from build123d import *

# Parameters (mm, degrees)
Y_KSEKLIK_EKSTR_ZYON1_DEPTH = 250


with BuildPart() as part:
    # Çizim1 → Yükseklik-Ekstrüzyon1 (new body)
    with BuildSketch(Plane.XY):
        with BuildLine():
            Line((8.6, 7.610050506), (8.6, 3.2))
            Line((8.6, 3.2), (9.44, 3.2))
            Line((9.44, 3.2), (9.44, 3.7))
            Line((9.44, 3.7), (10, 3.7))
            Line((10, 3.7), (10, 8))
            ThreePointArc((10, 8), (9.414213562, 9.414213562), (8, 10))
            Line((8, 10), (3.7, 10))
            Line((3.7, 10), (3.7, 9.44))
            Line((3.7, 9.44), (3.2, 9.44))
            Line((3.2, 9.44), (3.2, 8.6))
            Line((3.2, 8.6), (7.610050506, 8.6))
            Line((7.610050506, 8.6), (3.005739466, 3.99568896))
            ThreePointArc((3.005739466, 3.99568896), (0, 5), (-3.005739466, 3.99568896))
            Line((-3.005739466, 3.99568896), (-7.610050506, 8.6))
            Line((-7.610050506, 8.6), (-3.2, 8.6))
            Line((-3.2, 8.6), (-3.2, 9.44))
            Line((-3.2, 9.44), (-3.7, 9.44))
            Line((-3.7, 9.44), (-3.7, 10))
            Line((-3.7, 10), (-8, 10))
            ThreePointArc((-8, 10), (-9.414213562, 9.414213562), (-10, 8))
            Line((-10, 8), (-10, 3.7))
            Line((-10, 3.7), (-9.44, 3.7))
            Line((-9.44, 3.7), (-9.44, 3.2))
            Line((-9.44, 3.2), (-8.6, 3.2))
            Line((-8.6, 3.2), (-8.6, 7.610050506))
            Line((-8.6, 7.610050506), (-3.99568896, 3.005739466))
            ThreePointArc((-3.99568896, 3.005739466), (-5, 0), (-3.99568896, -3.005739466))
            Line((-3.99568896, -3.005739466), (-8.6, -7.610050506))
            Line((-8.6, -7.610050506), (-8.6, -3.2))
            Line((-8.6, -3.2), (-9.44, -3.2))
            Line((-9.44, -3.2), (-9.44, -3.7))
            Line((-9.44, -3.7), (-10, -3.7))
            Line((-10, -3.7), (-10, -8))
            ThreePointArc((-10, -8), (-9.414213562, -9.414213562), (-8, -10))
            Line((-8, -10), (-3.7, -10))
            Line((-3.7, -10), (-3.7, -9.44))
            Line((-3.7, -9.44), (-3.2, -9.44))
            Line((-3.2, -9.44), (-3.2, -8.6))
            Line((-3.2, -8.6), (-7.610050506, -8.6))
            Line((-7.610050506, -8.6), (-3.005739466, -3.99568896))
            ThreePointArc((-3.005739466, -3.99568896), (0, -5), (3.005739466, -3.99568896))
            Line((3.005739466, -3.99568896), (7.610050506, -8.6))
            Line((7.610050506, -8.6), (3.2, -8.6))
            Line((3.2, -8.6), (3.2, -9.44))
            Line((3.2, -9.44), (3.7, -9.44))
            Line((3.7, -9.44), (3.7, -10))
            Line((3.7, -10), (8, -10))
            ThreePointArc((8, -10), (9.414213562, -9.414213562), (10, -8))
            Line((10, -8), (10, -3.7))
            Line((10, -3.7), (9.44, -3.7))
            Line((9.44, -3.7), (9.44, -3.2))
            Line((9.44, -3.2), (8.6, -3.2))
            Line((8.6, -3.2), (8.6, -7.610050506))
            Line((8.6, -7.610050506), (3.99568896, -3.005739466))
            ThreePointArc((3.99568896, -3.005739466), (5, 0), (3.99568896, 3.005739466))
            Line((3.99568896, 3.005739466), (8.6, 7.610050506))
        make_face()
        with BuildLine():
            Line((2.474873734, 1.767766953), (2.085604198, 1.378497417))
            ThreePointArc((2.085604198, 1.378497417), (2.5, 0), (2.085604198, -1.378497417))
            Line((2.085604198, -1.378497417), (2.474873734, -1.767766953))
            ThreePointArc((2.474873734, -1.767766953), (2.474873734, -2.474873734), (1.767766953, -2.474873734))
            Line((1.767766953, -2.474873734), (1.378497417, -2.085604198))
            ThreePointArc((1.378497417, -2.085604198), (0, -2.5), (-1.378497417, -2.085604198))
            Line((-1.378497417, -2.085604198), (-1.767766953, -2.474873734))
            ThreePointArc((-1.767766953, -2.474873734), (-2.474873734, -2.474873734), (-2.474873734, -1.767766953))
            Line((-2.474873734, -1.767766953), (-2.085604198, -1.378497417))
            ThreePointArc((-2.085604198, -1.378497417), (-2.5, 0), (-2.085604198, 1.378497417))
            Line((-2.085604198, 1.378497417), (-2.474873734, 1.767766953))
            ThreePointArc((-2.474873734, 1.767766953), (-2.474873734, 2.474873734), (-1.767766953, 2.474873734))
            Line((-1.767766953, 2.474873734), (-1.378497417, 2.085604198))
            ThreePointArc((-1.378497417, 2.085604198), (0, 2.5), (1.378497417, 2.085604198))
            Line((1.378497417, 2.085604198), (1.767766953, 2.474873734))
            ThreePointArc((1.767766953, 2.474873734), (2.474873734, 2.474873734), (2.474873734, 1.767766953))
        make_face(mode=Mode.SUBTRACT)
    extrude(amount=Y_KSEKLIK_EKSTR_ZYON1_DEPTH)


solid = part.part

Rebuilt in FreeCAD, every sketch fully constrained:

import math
import FreeCAD as App
import Part
import Sketcher
from FreeCAD import Vector

doc = App.newDocument("Part")
body = doc.addObject("PartDesign::Body", "Body")

# Sketch on XY plane
sketch1 = body.newObject("Sketcher::SketchObject", "Sketch")
sketch1.AttachmentSupport = (doc.getObject("XY_Plane"), [""])
sketch1.MapMode = "FlatFace"
sketch1.addGeometry([
    Part.LineSegment(Vector(8.6, 7.6, 0), Vector(8.6, 3.2, 0)),  # 0
    Part.LineSegment(Vector(8.6, 3.2, 0), Vector(9.4, 3.2, 0)),  # 1
    Part.LineSegment(Vector(9.4, 3.2, 0), Vector(9.4, 3.7, 0)),  # 2
    Part.LineSegment(Vector(9.4, 3.7, 0), Vector(10, 3.7, 0)),  # 3
    Part.LineSegment(Vector(10, 3.7, 0), Vector(10, 8, 0)),  # 4
    Part.ArcOfCircle(Part.Circle(Vector(8, 8, 0), Vector(0, 0, 1), 2), math.radians(0), math.radians(90)),  # 5
    Part.LineSegment(Vector(8, 10, 0), Vector(3.7, 10, 0)),  # 6
    Part.LineSegment(Vector(3.7, 10, 0), Vector(3.7, 9.4, 0)),  # 7
    Part.LineSegment(Vector(3.7, 9.4, 0), Vector(3.2, 9.4, 0)),  # 8
    Part.LineSegment(Vector(3.2, 9.4, 0), Vector(3.2, 8.6, 0)),  # 9
    Part.LineSegment(Vector(3.2, 8.6, 0), Vector(7.6, 8.6, 0)),  # 10
    Part.LineSegment(Vector(7.6, 8.6, 0), Vector(3, 4, 0)),  # 11
    Part.ArcOfCircle(Part.Circle(Vector(0, 0, 0), Vector(0, 0, 1), 5), math.radians(53), math.radians(127)),  # 12
    Part.LineSegment(Vector(-3, 4, 0), Vector(-7.6, 8.6, 0)),  # 13
    Part.LineSegment(Vector(-7.6, 8.6, 0), Vector(-3.2, 8.6, 0)),  # 14
    Part.LineSegment(Vector(-3.2, 8.6, 0), Vector(-3.2, 9.4, 0)),  # 15
    Part.LineSegment(Vector(-3.2, 9.4, 0), Vector(-3.7, 9.4, 0)),  # 16
    Part.LineSegment(Vector(-3.7, 9.4, 0), Vector(-3.7, 10, 0)),  # 17
    Part.LineSegment(Vector(-3.7, 10, 0), Vector(-8, 10, 0)),  # 18
    Part.ArcOfCircle(Part.Circle(Vector(-8, 8, 0), Vector(0, 0, 1), 2), math.radians(90), math.radians(180)),  # 19
    Part.LineSegment(Vector(-10, 8, 0), Vector(-10, 3.7, 0)),  # 20
    Part.LineSegment(Vector(-10, 3.7, 0), Vector(-9.4, 3.7, 0)),  # 21
    Part.LineSegment(Vector(-9.4, 3.7, 0), Vector(-9.4, 3.2, 0)),  # 22
    Part.LineSegment(Vector(-9.4, 3.2, 0), Vector(-8.6, 3.2, 0)),  # 23
    Part.LineSegment(Vector(-8.6, 3.2, 0), Vector(-8.6, 7.6, 0)),  # 24
    Part.LineSegment(Vector(-8.6, 7.6, 0), Vector(-4, 3, 0)),  # 25
    Part.ArcOfCircle(Part.Circle(Vector(0, 0, 0), Vector(0, 0, 1), 5), math.radians(143), math.radians(217)),  # 26
    Part.LineSegment(Vector(-4, -3, 0), Vector(-8.6, -7.6, 0)),  # 27
    Part.LineSegment(Vector(-8.6, -7.6, 0), Vector(-8.6, -3.2, 0)),  # 28
    Part.LineSegment(Vector(-8.6, -3.2, 0), Vector(-9.4, -3.2, 0)),  # 29
    Part.LineSegment(Vector(-9.4, -3.2, 0), Vector(-9.4, -3.7, 0)),  # 30
    Part.LineSegment(Vector(-9.4, -3.7, 0), Vector(-10, -3.7, 0)),  # 31
    Part.LineSegment(Vector(-10, -3.7, 0), Vector(-10, -8, 0)),  # 32
    Part.ArcOfCircle(Part.Circle(Vector(-8, -8, 0), Vector(0, 0, 1), 2), math.radians(-180), math.radians(-90)),  # 33
    Part.LineSegment(Vector(-8, -10, 0), Vector(-3.7, -10, 0)),  # 34
    Part.LineSegment(Vector(-3.7, -10, 0), Vector(-3.7, -9.4, 0)),  # 35
    Part.LineSegment(Vector(-3.7, -9.4, 0), Vector(-3.2, -9.4, 0)),  # 36
    Part.LineSegment(Vector(-3.2, -9.4, 0), Vector(-3.2, -8.6, 0)),  # 37
    Part.LineSegment(Vector(-3.2, -8.6, 0), Vector(-7.6, -8.6, 0)),  # 38
    Part.LineSegment(Vector(-7.6, -8.6, 0), Vector(-3, -4, 0)),  # 39
    Part.ArcOfCircle(Part.Circle(Vector(0, 0, 0), Vector(0, 0, 1), 5), math.radians(-127), math.radians(-53)),  # 40
    Part.LineSegment(Vector(3, -4, 0), Vector(7.6, -8.6, 0)),  # 41
    Part.LineSegment(Vector(7.6, -8.6, 0), Vector(3.2, -8.6, 0)),  # 42
    Part.LineSegment(Vector(3.2, -8.6, 0), Vector(3.2, -9.4, 0)),  # 43
    Part.LineSegment(Vector(3.2, -9.4, 0), Vector(3.7, -9.4, 0)),  # 44
    Part.LineSegment(Vector(3.7, -9.4, 0), Vector(3.7, -10, 0)),  # 45
    Part.LineSegment(Vector(3.7, -10, 0), Vector(8, -10, 0)),  # 46
    Part.ArcOfCircle(Part.Circle(Vector(8, -8, 0), Vector(0, 0, 1), 2), math.radians(-90), math.radians(0)),  # 47
    Part.LineSegment(Vector(10, -8, 0), Vector(10, -3.7, 0)),  # 48
    Part.LineSegment(Vector(10, -3.7, 0), Vector(9.4, -3.7, 0)),  # 49
    Part.LineSegment(Vector(9.4, -3.7, 0), Vector(9.4, -3.2, 0)),  # 50
    Part.LineSegment(Vector(9.4, -3.2, 0), Vector(8.6, -3.2, 0)),  # 51
    Part.LineSegment(Vector(8.6, -3.2, 0), Vector(8.6, -7.6, 0)),  # 52
    Part.LineSegment(Vector(8.6, -7.6, 0), Vector(4, -3, 0)),  # 53
    Part.ArcOfCircle(Part.Circle(Vector(0, 0, 0), Vector(0, 0, 1), 5), math.radians(-37), math.radians(37)),  # 54
    Part.LineSegment(Vector(4, 3, 0), Vector(8.6, 7.6, 0)),  # 55
    Part.ArcOfCircle(Part.Circle(Vector(2.1, 2.1, 0), Vector(0, 0, 1), 0.5), math.radians(-45), math.radians(135)),  # 56
    Part.LineSegment(Vector(2.5, 1.8, 0), Vector(2.1, 1.4, 0)),  # 57
    Part.ArcOfCircle(Part.Circle(Vector(0, 0, 0), Vector(0, 0, 1), 2.5), math.radians(-33), math.radians(33)),  # 58
    Part.LineSegment(Vector(2.1, -1.4, 0), Vector(2.5, -1.8, 0)),  # 59
    Part.ArcOfCircle(Part.Circle(Vector(2.1, -2.1, 0), Vector(0, 0, 1), 0.5), math.radians(-135), math.radians(45)),  # 60
    Part.LineSegment(Vector(1.8, -2.5, 0), Vector(1.4, -2.1, 0)),  # 61
    Part.ArcOfCircle(Part.Circle(Vector(0, 0, 0), Vector(0, 0, 1), 2.5), math.radians(-123), math.radians(-57)),  # 62
    Part.LineSegment(Vector(-1.4, -2.1, 0), Vector(-1.8, -2.5, 0)),  # 63
    Part.ArcOfCircle(Part.Circle(Vector(-2.1, -2.1, 0), Vector(0, 0, 1), 0.5), math.radians(135), math.radians(315)),  # 64
    Part.LineSegment(Vector(-2.5, -1.8, 0), Vector(-2.1, -1.4, 0)),  # 65
    Part.ArcOfCircle(Part.Circle(Vector(0, 0, 0), Vector(0, 0, 1), 2.5), math.radians(147), math.radians(213)),  # 66
    Part.LineSegment(Vector(-2.1, 1.4, 0), Vector(-2.5, 1.8, 0)),  # 67
    Part.ArcOfCircle(Part.Circle(Vector(-2.1, 2.1, 0), Vector(0, 0, 1), 0.5), math.radians(45), math.radians(225)),  # 68
    Part.LineSegment(Vector(-1.8, 2.5, 0), Vector(-1.4, 2.1, 0)),  # 69
    Part.ArcOfCircle(Part.Circle(Vector(0, 0, 0), Vector(0, 0, 1), 2.5), math.radians(57), math.radians(123)),  # 70
    Part.LineSegment(Vector(1.4, 2.1, 0), Vector(1.8, 2.5, 0)),  # 71
], False)
sketch1.addConstraint([
    Sketcher.Constraint("Coincident", 0, 2, 1, 1),
    Sketcher.Constraint("Coincident", 1, 2, 2, 1),
    Sketcher.Constraint("Coincident", 2, 2, 3, 1),
    Sketcher.Constraint("Coincident", 3, 2, 4, 1),
    Sketcher.Constraint("Tangent", 4, 2, 5, 1),
    Sketcher.Constraint("Tangent", 5, 2, 6, 1),
    Sketcher.Constraint("Coincident", 6, 2, 7, 1),
    Sketcher.Constraint("Coincident", 7, 2, 8, 1),
    Sketcher.Constraint("Coincident", 8, 2, 9, 1),
    Sketcher.Constraint("Coincident", 9, 2, 10, 1),
    Sketcher.Constraint("Coincident", 10, 2, 11, 1),
    Sketcher.Constraint("Coincident", 11, 2, 12, 1),
    Sketcher.Constraint("Coincident", 12, 2, 13, 1),
    Sketcher.Constraint("Coincident", 13, 2, 14, 1),
    Sketcher.Constraint("Coincident", 14, 2, 15, 1),
    Sketcher.Constraint("Coincident", 15, 2, 16, 1),
    Sketcher.Constraint("Coincident", 16, 2, 17, 1),
    Sketcher.Constraint("Coincident", 17, 2, 18, 1),
    Sketcher.Constraint("Tangent", 18, 2, 19, 1),
    Sketcher.Constraint("Tangent", 19, 2, 20, 1),
    Sketcher.Constraint("Coincident", 20, 2, 21, 1),
    Sketcher.Constraint("Coincident", 21, 2, 22, 1),
    Sketcher.Constraint("Coincident", 22, 2, 23, 1),
    Sketcher.Constraint("Coincident", 23, 2, 24, 1),
    Sketcher.Constraint("Coincident", 24, 2, 25, 1),
    Sketcher.Constraint("Coincident", 25, 2, 26, 1),
    Sketcher.Constraint("Coincident", 26, 2, 27, 1),
    Sketcher.Constraint("Coincident", 27, 2, 28, 1),
    Sketcher.Constraint("Coincident", 28, 2, 29, 1),
    Sketcher.Constraint("Coincident", 29, 2, 30, 1),
    Sketcher.Constraint("Coincident", 30, 2, 31, 1),
    Sketcher.Constraint("Coincident", 31, 2, 32, 1),
    Sketcher.Constraint("Tangent", 32, 2, 33, 1),
    Sketcher.Constraint("Tangent", 33, 2, 34, 1),
    Sketcher.Constraint("Coincident", 34, 2, 35, 1),
    Sketcher.Constraint("Coincident", 35, 2, 36, 1),
    Sketcher.Constraint("Coincident", 36, 2, 37, 1),
    Sketcher.Constraint("Coincident", 37, 2, 38, 1),
    Sketcher.Constraint("Coincident", 38, 2, 39, 1),
    Sketcher.Constraint("Coincident", 39, 2, 40, 1),
    Sketcher.Constraint("Coincident", 40, 2, 41, 1),
    Sketcher.Constraint("Coincident", 41, 2, 42, 1),
    Sketcher.Constraint("Coincident", 42, 2, 43, 1),
    Sketcher.Constraint("Coincident", 43, 2, 44, 1),
    Sketcher.Constraint("Coincident", 44, 2, 45, 1),
    Sketcher.Constraint("Coincident", 45, 2, 46, 1),
    Sketcher.Constraint("Tangent", 46, 2, 47, 1),
    Sketcher.Constraint("Tangent", 47, 2, 48, 1),
    Sketcher.Constraint("Coincident", 48, 2, 49, 1),
    Sketcher.Constraint("Coincident", 49, 2, 50, 1),
    Sketcher.Constraint("Coincident", 50, 2, 51, 1),
    Sketcher.Constraint("Coincident", 51, 2, 52, 1),
    Sketcher.Constraint("Coincident", 52, 2, 53, 1),
    Sketcher.Constraint("Coincident", 53, 2, 54, 1),
    Sketcher.Constraint("Coincident", 54, 2, 55, 1),
    Sketcher.Constraint("Coincident", 55, 2, 0, 1),
    Sketcher.Constraint("Tangent", 56, 1, 57, 1),
    Sketcher.Constraint("Coincident", 57, 2, 58, 2),
    Sketcher.Constraint("Coincident", 58, 1, 59, 1),
    Sketcher.Constraint("Tangent", 59, 2, 60, 2),
    Sketcher.Constraint("Tangent", 60, 1, 61, 1),
    Sketcher.Constraint("Coincident", 61, 2, 62, 2),
    Sketcher.Constraint("Coincident", 62, 1, 63, 1),
    Sketcher.Constraint("Tangent", 63, 2, 64, 2),
    Sketcher.Constraint("Tangent", 64, 1, 65, 1),
    Sketcher.Constraint("Coincident", 65, 2, 66, 2),
    Sketcher.Constraint("Coincident", 66, 1, 67, 1),
    Sketcher.Constraint("Tangent", 67, 2, 68, 2),
    Sketcher.Constraint("Tangent", 68, 1, 69, 1),
    Sketcher.Constraint("Coincident", 69, 2, 70, 2),
    Sketcher.Constraint("Coincident", 70, 1, 71, 1),
    Sketcher.Constraint("Tangent", 71, 2, 56, 2),
    Sketcher.Constraint("Vertical", 0),
    Sketcher.Constraint("Horizontal", 1),
    Sketcher.Constraint("Vertical", 2),
    Sketcher.Constraint("Horizontal", 3),
    Sketcher.Constraint("Vertical", 4),
    Sketcher.Constraint("Horizontal", 6),
    Sketcher.Constraint("Vertical", 7),
    Sketcher.Constraint("Horizontal", 8),
    Sketcher.Constraint("Vertical", 9),
    Sketcher.Constraint("Horizontal", 10),
    Sketcher.Constraint("Horizontal", 14),
    Sketcher.Constraint("Vertical", 15),
    Sketcher.Constraint("Horizontal", 16),
    Sketcher.Constraint("Vertical", 17),
    Sketcher.Constraint("Horizontal", 18),
    Sketcher.Constraint("Vertical", 20),
    Sketcher.Constraint("Horizontal", 21),
    Sketcher.Constraint("Vertical", 22),
    Sketcher.Constraint("Horizontal", 23),
    Sketcher.Constraint("Vertical", 24),
    Sketcher.Constraint("Vertical", 28),
    Sketcher.Constraint("Horizontal", 29),
    Sketcher.Constraint("Vertical", 30),
    Sketcher.Constraint("Horizontal", 31),
    Sketcher.Constraint("Vertical", 32),
    Sketcher.Constraint("Horizontal", 34),
    Sketcher.Constraint("Vertical", 35),
    Sketcher.Constraint("Horizontal", 36),
    Sketcher.Constraint("Vertical", 37),
    Sketcher.Constraint("Horizontal", 38),
    Sketcher.Constraint("Horizontal", 42),
    Sketcher.Constraint("Vertical", 43),
    Sketcher.Constraint("Horizontal", 44),
    Sketcher.Constraint("Vertical", 45),
    Sketcher.Constraint("Horizontal", 46),
    Sketcher.Constraint("Vertical", 48),
    Sketcher.Constraint("Horizontal", 49),
    Sketcher.Constraint("Vertical", 50),
    Sketcher.Constraint("Horizontal", 51),
    Sketcher.Constraint("Vertical", 52),
    Sketcher.Constraint("Coincident", 12, 3, -1, 1),
    Sketcher.Constraint("Coincident", 26, 3, -1, 1),
    Sketcher.Constraint("Coincident", 40, 3, -1, 1),
    Sketcher.Constraint("Coincident", 54, 3, -1, 1),
    Sketcher.Constraint("Coincident", 58, 3, -1, 1),
    Sketcher.Constraint("Coincident", 62, 3, -1, 1),
    Sketcher.Constraint("Coincident", 66, 3, -1, 1),
    Sketcher.Constraint("Coincident", 70, 3, -1, 1),
    Sketcher.Constraint("Equal", 5, 19),
    Sketcher.Constraint("Equal", 12, 26),
    Sketcher.Constraint("Equal", 19, 33),
    Sketcher.Constraint("Equal", 26, 40),
    Sketcher.Constraint("Equal", 33, 47),
    Sketcher.Constraint("Equal", 40, 54),
    Sketcher.Constraint("Equal", 56, 60),
    Sketcher.Constraint("Equal", 58, 62),
    Sketcher.Constraint("Equal", 60, 64),
    Sketcher.Constraint("Equal", 62, 66),
    Sketcher.Constraint("Equal", 64, 68),
    Sketcher.Constraint("Equal", 66, 70),
    Sketcher.Constraint("Symmetric", 5, 3, 33, 3, -1, 1),
    Sketcher.Constraint("Symmetric", 19, 3, 47, 3, -1, 1),
    Sketcher.Constraint("Symmetric", 56, 3, 64, 3, -1, 1),
    Sketcher.Constraint("Symmetric", 60, 3, 68, 3, -1, 1),
    Sketcher.Constraint("Symmetric", 0, 2, 28, 2, -1, 1),
    Sketcher.Constraint("Symmetric", 2, 2, 30, 2, -1, 1),
    Sketcher.Constraint("Symmetric", 7, 2, 35, 2, -1, 1),
    Sketcher.Constraint("Symmetric", 9, 2, 37, 2, -1, 1),
    Sketcher.Constraint("Symmetric", 13, 2, 41, 2, -1, 1),
    Sketcher.Constraint("Symmetric", 15, 2, 43, 2, -1, 1),
    Sketcher.Constraint("Symmetric", 21, 2, 49, 2, -1, 1),
    Sketcher.Constraint("Symmetric", 23, 2, 51, 2, -1, 1),
    Sketcher.Constraint("Symmetric", 5, 3, 19, 3, -2),
    Sketcher.Constraint("Symmetric", 60, 3, 64, 3, -2),
    Sketcher.Constraint("Symmetric", 10, 2, 13, 2, -2),
    Sketcher.Constraint("Symmetric", 8, 2, 15, 2, -2),
    Sketcher.Constraint("Symmetric", 2, 2, 21, 2, -2),
    Sketcher.Constraint("Symmetric", 0, 2, 23, 2, -2),
    Sketcher.Constraint("Perpendicular", 11, 13),
    Sketcher.Constraint("Parallel", 13, 25),
    Sketcher.Constraint("Perpendicular", 25, 27),
    Sketcher.Constraint("Parallel", 27, 39),
    Sketcher.Constraint("Perpendicular", 39, 41),
    Sketcher.Constraint("Parallel", 41, 53),
    Sketcher.Constraint("Perpendicular", 53, 55),
    Sketcher.Constraint("Parallel", 55, 57),
    Sketcher.Constraint("Perpendicular", 57, 59),
    Sketcher.Constraint("Parallel", 59, 61),
    Sketcher.Constraint("Perpendicular", 61, 63),
    Sketcher.Constraint("Parallel", 63, 65),
    Sketcher.Constraint("Perpendicular", 65, 67),
    Sketcher.Constraint("Parallel", 67, 69),
    Sketcher.Constraint("Perpendicular", 69, 71),
    Sketcher.Constraint("Horizontal", 11, 2, 12, 2),
    Sketcher.Constraint("Horizontal", 39, 2, 40, 2),
    Sketcher.Constraint("Horizontal", 27, 2, 52, 2),
    Sketcher.Constraint("Horizontal", 25, 2, 54, 2),
    Sketcher.Constraint("Vertical", 25, 2, 26, 2),
    Sketcher.Constraint("Vertical", 17, 2, 34, 2),
    Sketcher.Constraint("Vertical", 7, 2, 44, 2),
    Sketcher.Constraint("Equal", 42, 0),
    Sketcher.Constraint("Equal", 44, 2),
    Sketcher.Constraint("Equal", 46, 4),
    Sketcher.Constraint("Equal", 49, 7),
    Sketcher.Constraint("Equal", 51, 9),
    Sketcher.Constraint("Equal", 13, 25),
    Sketcher.Constraint("Equal", 59, 61),
    Sketcher.Constraint("Radius", 5, 2.0),
    Sketcher.Constraint("Radius", 12, 5.0),
    Sketcher.Constraint("Radius", 56, 0.5),
    Sketcher.Constraint("Radius", 58, 2.5),
    Sketcher.Constraint("DistanceX", 6, 2, 6, 1, 4.3),
    Sketcher.Constraint("DistanceX", 8, 2, 8, 1, 0.5),
    Sketcher.Constraint("DistanceX", -1, 1, 5, 3, 8.0),
    Sketcher.Constraint("DistanceX", 1, 1, 1, 2, 0.84),
    Sketcher.Constraint("DistanceX", 3, 1, 3, 2, 0.56),
    Sketcher.Constraint("DistanceX", 10, 1, 10, 2, 4.410051),
    Sketcher.Constraint("Distance", 57, 0.55051),
])
pad1 = body.newObject("PartDesign::Pad", "Pad")
pad1.Profile = sketch1
pad1.Length = 250

doc.recompute()
